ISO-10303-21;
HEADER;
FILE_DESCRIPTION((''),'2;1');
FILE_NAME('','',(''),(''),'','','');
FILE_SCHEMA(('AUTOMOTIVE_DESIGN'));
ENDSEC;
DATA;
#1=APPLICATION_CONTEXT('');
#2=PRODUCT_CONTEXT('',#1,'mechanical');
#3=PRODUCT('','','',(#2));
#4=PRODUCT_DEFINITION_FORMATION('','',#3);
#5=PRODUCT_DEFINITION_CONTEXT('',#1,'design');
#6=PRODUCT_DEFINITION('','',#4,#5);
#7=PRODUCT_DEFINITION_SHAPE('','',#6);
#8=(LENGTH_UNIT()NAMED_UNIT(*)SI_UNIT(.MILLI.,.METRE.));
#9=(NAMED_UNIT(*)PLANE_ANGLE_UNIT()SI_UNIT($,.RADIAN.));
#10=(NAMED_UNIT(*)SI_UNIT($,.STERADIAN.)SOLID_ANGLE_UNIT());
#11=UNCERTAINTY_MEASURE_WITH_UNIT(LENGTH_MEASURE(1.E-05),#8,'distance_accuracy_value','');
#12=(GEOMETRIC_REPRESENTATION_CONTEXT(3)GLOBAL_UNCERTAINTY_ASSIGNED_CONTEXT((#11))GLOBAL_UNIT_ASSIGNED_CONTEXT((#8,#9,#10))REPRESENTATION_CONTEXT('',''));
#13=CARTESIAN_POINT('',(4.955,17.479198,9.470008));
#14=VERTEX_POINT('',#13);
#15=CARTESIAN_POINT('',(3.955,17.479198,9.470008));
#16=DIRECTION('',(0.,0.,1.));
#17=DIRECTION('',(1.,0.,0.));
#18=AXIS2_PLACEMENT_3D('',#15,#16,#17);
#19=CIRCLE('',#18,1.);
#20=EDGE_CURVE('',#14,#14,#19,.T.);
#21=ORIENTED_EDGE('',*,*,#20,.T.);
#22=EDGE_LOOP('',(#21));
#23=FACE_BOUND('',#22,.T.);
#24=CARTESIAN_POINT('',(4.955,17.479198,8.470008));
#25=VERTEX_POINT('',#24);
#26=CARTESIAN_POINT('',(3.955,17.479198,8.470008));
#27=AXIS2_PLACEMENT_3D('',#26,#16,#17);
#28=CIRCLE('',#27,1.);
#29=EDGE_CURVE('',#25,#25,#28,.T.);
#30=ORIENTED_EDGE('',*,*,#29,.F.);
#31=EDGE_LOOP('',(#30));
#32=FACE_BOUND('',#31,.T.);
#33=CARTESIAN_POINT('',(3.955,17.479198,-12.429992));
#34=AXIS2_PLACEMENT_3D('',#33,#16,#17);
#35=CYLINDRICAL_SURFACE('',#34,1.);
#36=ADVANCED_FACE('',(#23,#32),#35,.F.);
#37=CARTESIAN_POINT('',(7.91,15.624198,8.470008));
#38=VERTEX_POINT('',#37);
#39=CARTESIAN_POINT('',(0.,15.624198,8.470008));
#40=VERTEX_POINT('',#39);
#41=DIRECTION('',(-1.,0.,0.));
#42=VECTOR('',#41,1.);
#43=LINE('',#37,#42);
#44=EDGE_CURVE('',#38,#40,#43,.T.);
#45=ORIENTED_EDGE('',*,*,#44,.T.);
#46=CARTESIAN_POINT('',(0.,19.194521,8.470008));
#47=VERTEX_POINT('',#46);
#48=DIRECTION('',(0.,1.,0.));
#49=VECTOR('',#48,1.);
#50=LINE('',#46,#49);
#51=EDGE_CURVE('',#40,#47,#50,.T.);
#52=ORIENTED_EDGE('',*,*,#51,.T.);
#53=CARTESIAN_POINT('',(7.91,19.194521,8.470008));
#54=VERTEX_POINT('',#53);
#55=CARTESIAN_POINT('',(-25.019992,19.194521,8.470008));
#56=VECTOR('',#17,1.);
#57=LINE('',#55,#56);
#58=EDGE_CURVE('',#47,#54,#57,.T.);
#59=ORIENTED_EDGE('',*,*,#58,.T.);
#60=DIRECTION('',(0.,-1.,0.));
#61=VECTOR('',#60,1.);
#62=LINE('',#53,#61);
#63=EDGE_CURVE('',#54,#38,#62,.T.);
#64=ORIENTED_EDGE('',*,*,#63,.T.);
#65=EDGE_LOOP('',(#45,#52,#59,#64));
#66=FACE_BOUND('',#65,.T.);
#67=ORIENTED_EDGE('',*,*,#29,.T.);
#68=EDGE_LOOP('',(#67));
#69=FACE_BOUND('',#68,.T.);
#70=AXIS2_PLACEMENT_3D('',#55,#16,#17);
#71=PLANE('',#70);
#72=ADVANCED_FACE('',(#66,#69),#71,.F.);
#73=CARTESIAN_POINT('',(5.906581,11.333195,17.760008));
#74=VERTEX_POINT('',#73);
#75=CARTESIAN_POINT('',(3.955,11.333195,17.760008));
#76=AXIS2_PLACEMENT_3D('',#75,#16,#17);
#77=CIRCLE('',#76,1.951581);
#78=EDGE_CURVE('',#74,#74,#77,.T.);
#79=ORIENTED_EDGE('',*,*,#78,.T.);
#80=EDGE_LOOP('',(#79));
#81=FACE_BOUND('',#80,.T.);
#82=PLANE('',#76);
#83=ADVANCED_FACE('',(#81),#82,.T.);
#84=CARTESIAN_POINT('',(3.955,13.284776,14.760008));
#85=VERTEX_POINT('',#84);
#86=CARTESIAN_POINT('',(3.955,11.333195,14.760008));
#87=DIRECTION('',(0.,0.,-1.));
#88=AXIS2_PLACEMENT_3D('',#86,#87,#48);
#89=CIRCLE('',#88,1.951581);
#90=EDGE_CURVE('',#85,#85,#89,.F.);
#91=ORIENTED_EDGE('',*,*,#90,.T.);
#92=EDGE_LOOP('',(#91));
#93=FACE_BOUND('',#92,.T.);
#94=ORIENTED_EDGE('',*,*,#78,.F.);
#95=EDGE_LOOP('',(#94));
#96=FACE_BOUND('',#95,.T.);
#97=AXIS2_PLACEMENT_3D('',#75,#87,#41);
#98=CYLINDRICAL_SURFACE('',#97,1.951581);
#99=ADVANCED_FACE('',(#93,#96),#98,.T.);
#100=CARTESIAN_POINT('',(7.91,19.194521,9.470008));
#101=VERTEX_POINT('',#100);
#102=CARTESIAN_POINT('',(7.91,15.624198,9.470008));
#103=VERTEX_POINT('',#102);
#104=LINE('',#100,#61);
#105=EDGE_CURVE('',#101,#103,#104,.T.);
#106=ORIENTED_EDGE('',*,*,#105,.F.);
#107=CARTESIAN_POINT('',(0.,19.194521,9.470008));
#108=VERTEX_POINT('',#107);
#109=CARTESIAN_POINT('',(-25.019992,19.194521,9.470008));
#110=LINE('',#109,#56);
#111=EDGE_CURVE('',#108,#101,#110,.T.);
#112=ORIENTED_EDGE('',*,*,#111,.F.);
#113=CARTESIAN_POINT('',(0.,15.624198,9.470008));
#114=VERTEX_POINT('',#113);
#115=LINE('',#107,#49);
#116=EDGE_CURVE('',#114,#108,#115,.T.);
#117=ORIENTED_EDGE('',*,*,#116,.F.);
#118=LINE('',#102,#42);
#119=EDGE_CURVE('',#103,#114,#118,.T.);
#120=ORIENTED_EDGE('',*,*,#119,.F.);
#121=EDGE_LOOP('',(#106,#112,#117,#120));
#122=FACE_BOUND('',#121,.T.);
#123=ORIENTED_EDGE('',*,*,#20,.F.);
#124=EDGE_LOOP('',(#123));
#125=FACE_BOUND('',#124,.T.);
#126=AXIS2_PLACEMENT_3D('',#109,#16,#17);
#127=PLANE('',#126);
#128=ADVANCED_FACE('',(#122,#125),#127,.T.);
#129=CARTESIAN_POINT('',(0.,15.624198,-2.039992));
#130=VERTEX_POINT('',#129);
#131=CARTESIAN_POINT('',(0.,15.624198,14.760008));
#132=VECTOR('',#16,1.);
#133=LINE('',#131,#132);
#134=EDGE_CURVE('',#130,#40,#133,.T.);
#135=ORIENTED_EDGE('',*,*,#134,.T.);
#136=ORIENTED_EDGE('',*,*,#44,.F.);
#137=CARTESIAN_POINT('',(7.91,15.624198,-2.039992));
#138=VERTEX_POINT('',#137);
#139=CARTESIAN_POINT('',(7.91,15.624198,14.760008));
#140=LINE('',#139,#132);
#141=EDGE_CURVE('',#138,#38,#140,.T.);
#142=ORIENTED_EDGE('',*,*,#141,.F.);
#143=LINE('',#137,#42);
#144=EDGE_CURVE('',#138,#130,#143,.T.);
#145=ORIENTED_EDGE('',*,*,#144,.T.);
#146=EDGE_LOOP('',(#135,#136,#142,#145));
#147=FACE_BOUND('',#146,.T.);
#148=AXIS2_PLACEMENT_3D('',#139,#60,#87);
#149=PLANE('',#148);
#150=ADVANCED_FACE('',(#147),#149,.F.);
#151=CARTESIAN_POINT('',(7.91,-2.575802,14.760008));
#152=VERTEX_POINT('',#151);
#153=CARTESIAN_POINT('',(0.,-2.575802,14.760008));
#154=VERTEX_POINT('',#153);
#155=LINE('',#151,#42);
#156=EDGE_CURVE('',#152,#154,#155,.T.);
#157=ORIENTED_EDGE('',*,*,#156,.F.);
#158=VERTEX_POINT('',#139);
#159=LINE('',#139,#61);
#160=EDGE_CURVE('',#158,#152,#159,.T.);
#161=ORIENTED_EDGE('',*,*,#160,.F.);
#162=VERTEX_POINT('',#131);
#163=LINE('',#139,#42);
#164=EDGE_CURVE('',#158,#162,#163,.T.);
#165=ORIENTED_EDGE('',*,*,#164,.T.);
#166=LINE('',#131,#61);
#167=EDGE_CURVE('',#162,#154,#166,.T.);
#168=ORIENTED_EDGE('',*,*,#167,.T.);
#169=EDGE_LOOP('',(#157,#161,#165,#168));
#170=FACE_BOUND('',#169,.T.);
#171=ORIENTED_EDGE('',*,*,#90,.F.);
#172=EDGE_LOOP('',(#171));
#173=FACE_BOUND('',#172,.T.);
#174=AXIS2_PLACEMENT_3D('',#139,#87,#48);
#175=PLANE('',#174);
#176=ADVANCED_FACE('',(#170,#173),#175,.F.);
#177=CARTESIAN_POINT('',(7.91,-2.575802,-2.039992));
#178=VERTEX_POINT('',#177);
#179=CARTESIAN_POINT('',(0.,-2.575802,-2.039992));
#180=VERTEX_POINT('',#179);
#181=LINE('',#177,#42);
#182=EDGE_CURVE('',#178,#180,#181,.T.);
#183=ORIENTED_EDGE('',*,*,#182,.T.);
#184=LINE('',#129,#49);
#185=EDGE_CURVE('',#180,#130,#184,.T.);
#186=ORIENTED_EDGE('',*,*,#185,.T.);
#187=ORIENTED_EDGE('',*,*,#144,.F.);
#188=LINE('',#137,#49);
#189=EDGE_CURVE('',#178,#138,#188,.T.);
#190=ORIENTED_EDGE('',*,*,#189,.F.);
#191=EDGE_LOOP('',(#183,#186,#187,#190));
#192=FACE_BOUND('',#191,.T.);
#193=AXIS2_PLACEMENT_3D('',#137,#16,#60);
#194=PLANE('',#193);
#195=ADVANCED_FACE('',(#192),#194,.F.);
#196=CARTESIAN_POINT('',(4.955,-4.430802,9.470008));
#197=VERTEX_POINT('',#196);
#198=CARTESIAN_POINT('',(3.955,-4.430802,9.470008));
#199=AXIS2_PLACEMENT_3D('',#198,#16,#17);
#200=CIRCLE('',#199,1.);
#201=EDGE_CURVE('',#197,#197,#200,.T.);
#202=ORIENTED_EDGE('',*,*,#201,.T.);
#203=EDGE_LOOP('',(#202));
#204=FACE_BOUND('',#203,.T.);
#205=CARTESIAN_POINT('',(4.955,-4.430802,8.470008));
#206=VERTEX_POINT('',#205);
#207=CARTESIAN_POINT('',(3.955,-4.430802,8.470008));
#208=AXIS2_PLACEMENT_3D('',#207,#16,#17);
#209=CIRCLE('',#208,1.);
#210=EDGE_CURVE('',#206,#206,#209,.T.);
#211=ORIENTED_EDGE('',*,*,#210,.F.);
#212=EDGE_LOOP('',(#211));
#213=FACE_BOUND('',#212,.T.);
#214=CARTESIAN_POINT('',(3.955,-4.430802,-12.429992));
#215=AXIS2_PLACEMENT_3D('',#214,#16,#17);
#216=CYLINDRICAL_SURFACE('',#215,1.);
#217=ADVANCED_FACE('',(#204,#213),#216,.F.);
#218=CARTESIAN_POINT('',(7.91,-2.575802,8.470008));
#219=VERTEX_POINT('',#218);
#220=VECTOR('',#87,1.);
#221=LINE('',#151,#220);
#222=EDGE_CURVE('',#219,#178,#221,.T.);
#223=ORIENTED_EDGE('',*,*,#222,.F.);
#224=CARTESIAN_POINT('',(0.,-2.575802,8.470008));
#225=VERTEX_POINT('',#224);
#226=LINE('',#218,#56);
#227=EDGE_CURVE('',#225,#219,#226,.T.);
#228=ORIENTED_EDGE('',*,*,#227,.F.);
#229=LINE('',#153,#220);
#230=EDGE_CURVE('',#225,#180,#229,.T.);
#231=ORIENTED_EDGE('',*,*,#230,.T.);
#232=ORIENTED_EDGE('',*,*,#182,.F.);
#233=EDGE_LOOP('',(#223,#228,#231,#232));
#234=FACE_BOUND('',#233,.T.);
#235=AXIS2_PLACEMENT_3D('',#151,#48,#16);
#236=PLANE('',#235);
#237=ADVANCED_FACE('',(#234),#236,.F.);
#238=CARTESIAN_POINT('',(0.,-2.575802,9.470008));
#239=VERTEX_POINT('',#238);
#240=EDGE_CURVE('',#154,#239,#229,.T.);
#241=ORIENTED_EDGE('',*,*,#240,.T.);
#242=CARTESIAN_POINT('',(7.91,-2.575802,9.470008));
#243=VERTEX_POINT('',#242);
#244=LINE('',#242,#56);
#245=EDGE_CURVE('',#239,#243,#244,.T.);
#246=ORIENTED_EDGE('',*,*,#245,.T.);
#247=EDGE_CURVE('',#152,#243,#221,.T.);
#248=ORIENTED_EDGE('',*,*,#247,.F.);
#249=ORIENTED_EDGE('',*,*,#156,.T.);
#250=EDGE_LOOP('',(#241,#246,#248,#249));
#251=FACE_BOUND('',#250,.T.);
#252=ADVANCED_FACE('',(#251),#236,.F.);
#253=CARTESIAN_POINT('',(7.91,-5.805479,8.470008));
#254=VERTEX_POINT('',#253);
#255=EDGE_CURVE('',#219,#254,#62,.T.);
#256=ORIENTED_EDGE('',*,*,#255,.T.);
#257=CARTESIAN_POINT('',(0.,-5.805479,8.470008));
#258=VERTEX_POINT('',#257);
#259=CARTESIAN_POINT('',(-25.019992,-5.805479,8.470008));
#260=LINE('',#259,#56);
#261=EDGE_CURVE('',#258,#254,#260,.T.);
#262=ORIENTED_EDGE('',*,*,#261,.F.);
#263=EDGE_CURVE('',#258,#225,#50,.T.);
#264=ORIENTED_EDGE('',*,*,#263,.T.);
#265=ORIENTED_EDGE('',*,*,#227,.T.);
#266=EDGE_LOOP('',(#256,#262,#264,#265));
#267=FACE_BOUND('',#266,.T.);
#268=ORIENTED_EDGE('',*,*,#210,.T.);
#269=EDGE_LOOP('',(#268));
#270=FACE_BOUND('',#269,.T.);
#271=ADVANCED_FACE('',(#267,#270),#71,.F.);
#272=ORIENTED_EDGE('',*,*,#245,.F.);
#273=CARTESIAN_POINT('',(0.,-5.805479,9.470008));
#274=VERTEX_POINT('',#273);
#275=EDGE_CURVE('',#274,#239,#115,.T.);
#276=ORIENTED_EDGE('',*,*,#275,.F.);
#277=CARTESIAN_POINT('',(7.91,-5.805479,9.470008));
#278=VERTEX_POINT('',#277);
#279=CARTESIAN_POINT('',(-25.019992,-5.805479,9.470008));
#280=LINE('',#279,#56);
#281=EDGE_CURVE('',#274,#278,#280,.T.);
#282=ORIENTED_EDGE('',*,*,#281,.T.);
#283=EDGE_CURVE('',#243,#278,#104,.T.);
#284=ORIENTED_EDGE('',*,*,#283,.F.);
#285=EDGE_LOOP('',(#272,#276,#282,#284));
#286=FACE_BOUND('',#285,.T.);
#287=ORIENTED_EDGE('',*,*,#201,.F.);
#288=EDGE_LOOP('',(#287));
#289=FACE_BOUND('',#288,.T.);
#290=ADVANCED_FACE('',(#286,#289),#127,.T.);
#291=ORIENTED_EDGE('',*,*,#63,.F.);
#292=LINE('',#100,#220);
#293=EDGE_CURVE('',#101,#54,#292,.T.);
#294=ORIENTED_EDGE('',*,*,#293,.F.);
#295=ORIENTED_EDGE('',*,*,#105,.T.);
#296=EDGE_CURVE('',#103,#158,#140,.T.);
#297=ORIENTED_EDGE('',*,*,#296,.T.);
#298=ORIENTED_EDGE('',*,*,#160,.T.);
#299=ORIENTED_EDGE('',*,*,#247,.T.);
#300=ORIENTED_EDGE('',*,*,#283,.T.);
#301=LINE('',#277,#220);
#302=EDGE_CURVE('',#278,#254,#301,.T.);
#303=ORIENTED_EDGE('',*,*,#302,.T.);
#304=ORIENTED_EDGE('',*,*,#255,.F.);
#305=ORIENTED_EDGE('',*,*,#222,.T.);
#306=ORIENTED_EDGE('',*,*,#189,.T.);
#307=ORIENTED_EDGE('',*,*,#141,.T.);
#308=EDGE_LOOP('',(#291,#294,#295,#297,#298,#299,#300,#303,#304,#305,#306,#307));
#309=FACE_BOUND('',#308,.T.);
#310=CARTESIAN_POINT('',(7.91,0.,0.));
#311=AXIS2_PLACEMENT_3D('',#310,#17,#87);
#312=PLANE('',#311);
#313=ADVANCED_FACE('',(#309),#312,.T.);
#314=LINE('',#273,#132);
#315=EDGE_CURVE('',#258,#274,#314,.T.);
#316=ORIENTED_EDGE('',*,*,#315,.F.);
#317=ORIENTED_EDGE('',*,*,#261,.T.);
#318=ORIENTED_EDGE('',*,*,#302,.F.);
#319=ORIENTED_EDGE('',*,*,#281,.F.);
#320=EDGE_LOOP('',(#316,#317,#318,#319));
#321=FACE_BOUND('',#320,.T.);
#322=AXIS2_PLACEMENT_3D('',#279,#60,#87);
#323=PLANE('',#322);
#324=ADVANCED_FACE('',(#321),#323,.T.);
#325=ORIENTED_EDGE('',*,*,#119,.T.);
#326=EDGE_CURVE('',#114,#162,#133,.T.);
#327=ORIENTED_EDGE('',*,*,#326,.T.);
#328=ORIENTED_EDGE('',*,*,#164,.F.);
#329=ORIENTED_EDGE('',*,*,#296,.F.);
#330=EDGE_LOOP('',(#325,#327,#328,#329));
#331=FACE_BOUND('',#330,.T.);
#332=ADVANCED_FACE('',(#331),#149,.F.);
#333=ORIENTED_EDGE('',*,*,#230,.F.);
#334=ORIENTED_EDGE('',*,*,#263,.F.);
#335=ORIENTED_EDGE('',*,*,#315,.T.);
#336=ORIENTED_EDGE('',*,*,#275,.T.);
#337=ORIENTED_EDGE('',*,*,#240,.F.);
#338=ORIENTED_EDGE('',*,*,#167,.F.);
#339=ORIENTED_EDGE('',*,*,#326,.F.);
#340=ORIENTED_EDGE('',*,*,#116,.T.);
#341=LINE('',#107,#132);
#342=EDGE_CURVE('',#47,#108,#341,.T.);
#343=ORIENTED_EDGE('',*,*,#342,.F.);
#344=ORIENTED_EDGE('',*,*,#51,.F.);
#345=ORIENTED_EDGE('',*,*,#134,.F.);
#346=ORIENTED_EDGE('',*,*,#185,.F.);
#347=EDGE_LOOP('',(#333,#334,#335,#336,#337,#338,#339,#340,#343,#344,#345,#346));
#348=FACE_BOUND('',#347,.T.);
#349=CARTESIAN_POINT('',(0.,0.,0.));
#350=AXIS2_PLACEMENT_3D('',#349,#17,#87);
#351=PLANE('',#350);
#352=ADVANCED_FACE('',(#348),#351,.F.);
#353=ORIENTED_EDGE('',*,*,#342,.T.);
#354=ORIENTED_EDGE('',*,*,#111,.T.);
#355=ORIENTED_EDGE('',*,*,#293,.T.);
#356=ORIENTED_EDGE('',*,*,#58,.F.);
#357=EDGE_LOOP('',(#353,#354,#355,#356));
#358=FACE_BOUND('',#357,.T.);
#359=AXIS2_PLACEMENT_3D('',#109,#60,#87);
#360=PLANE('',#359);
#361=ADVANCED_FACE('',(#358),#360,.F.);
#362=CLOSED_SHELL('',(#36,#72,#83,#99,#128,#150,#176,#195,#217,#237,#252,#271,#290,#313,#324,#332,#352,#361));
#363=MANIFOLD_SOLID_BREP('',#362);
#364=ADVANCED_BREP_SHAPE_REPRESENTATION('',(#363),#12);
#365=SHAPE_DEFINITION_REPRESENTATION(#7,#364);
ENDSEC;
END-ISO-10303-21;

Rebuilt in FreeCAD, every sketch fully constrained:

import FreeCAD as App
import Part
import Sketcher
from FreeCAD import Vector
Q = App.Units.Quantity

doc = App.newDocument("Part")
body = doc.addObject("PartDesign::Body", "Body")

sketch1 = body.newObject("Sketcher::SketchObject", "Sketch")
sketch1.AttachmentSupport = (doc.getObject("YZ_Plane"), [""])
sketch1.MapMode = "FlatFace"
sketch1.addGeometry([
    Part.LineSegment(Vector(15.624198, 14.760008, 0), Vector(-2.575802, 14.760008, 0)),
    Part.LineSegment(Vector(-2.575802, 14.760008, 0), Vector(-2.575802, -2.039992, 0)),
    Part.LineSegment(Vector(-2.575802, -2.039992, 0), Vector(15.624198, -2.039992, 0)),
    Part.LineSegment(Vector(15.624198, -2.039992, 0), Vector(15.624198, 14.760008, 0)),
], False)
sketch1.addConstraint([
    Sketcher.Constraint("Coincident", 0, 2, 1, 1),
    Sketcher.Constraint("Coincident", 1, 2, 2, 1),
    Sketcher.Constraint("Coincident", 2, 2, 3, 1),
    Sketcher.Constraint("Coincident", 3, 2, 0, 1),
    Sketcher.Constraint("Horizontal", 0),
    Sketcher.Constraint("Vertical", 1),
    Sketcher.Constraint("Horizontal", 2),
    Sketcher.Constraint("Vertical", 3),
    Sketcher.Constraint("DistanceX", 0, 2, 0, 1, Q("18.2 mm")),
    Sketcher.Constraint("DistanceY", 1, 2, 1, 1, Q("16.8 mm")),
    Sketcher.Constraint("DistanceY", -1, 1, 0, 2, Q("14.760008 mm")),
    Sketcher.Constraint("DistanceX", 0, 2, -1, 1, Q("2.575802 mm")),
])
pad1 = body.newObject("PartDesign::Pad", "Pad")
pad1.Profile = sketch1
pad1.Length = 7.91

sketch2 = body.newObject("Sketcher::SketchObject", "Sketch001")
sketch2.AttachmentSupport = (doc.getObject("YZ_Plane"), [""])
sketch2.MapMode = "FlatFace"
sketch2.AttachmentOffset = App.Placement(Vector(0, 0, 7.91), App.Rotation())
sketch2.addGeometry([
    Part.LineSegment(Vector(19.194521, 9.470008, 0), Vector(-5.805479, 9.470008, 0)),
    Part.LineSegment(Vector(-5.805479, 9.470008, 0), Vector(-5.805479, 8.470008, 0)),
    Part.LineSegment(Vector(-5.805479, 8.470008, 0), Vector(19.194521, 8.470008, 0)),
    Part.LineSegment(Vector(19.194521, 8.470008, 0), Vector(19.194521, 9.470008, 0)),
], False)
sketch2.addConstraint([
    Sketcher.Constraint("Coincident", 0, 2, 1, 1),
    Sketcher.Constraint("Coincident", 1, 2, 2, 1),
    Sketcher.Constraint("Coincident", 2, 2, 3, 1),
    Sketcher.Constraint("Coincident", 3, 2, 0, 1),
    Sketcher.Constraint("Horizontal", 0),
    Sketcher.Constraint("Vertical", 1),
    Sketcher.Constraint("Horizontal", 2),
    Sketcher.Constraint("Vertical", 3),
    Sketcher.Constraint("DistanceX", 0, 2, 0, 1, Q("25 mm")),
    Sketcher.Constraint("DistanceY", 1, 2, 1, 1, Q("1 mm")),
    Sketcher.Constraint("DistanceX", 0, 2, -1, 1, Q("5.805479 mm")),
    Sketcher.Constraint("DistanceY", -1, 1, 0, 2, Q("9.470008 mm")),
])
pad2 = body.newObject("PartDesign::Pad", "Pad001")
pad2.Profile = sketch2
pad2.Length = 7.91
pad2.Reversed = True

sketch3 = body.newObject("Sketcher::SketchObject", "Sketch002")
sketch3.AttachmentSupport = (doc.getObject("XY_Plane"), [""])
sketch3.MapMode = "FlatFace"
sketch3.AttachmentOffset = App.Placement(Vector(0, 0, 9.470008), App.Rotation())
sketch3.addGeometry([
    Part.Circle(Vector(3.955, 17.479198, 0), Vector(0, 0, 1), 1),
    Part.Circle(Vector(3.955, -4.430802, 0), Vector(0, 0, 1), 1),
], False)
sketch3.addConstraint([
    Sketcher.Constraint("Equal", 0, 1),
    Sketcher.Constraint("Vertical", 0, 3, 1, 3),
    Sketcher.Constraint("Diameter", 0, Q("2 mm")),
    Sketcher.Constraint("DistanceY", 1, 3, 0, 3, Q("21.91 mm")),
    Sketcher.Constraint("DistanceX", -1, 1, 0, 3, Q("3.955 mm")),
    Sketcher.Constraint("DistanceY", -1, 1, 0, 3, Q("17.479198 mm")),
])
pocket1 = body.newObject("PartDesign::Pocket", "Pocket")
pocket1.Profile = sketch3
pocket1.Length = 21.9

sketch4 = body.newObject("Sketcher::SketchObject", "Sketch003")
sketch4.AttachmentSupport = (doc.getObject("XY_Plane"), [""])
sketch4.MapMode = "FlatFace"
sketch4.AttachmentOffset = App.Placement(Vector(0, 0, 14.760008), App.Rotation())
sketch4.addGeometry(Part.Circle(Vector(3.955, 11.333195, 0), Vector(0, 0, 1), 1.951581), False)
sketch4.addConstraint([
    Sketcher.Constraint("Diameter", 0, Q("3.903162 mm")),
    Sketcher.Constraint("DistanceX", -1, 1, 0, 3, Q("3.955 mm")),
    Sketcher.Constraint("DistanceY", -1, 1, 0, 3, Q("11.333195 mm")),
])
pad3 = body.newObject("PartDesign::Pad", "Pad002")
pad3.Profile = sketch4
pad3.Length = 3

doc.recompute()
